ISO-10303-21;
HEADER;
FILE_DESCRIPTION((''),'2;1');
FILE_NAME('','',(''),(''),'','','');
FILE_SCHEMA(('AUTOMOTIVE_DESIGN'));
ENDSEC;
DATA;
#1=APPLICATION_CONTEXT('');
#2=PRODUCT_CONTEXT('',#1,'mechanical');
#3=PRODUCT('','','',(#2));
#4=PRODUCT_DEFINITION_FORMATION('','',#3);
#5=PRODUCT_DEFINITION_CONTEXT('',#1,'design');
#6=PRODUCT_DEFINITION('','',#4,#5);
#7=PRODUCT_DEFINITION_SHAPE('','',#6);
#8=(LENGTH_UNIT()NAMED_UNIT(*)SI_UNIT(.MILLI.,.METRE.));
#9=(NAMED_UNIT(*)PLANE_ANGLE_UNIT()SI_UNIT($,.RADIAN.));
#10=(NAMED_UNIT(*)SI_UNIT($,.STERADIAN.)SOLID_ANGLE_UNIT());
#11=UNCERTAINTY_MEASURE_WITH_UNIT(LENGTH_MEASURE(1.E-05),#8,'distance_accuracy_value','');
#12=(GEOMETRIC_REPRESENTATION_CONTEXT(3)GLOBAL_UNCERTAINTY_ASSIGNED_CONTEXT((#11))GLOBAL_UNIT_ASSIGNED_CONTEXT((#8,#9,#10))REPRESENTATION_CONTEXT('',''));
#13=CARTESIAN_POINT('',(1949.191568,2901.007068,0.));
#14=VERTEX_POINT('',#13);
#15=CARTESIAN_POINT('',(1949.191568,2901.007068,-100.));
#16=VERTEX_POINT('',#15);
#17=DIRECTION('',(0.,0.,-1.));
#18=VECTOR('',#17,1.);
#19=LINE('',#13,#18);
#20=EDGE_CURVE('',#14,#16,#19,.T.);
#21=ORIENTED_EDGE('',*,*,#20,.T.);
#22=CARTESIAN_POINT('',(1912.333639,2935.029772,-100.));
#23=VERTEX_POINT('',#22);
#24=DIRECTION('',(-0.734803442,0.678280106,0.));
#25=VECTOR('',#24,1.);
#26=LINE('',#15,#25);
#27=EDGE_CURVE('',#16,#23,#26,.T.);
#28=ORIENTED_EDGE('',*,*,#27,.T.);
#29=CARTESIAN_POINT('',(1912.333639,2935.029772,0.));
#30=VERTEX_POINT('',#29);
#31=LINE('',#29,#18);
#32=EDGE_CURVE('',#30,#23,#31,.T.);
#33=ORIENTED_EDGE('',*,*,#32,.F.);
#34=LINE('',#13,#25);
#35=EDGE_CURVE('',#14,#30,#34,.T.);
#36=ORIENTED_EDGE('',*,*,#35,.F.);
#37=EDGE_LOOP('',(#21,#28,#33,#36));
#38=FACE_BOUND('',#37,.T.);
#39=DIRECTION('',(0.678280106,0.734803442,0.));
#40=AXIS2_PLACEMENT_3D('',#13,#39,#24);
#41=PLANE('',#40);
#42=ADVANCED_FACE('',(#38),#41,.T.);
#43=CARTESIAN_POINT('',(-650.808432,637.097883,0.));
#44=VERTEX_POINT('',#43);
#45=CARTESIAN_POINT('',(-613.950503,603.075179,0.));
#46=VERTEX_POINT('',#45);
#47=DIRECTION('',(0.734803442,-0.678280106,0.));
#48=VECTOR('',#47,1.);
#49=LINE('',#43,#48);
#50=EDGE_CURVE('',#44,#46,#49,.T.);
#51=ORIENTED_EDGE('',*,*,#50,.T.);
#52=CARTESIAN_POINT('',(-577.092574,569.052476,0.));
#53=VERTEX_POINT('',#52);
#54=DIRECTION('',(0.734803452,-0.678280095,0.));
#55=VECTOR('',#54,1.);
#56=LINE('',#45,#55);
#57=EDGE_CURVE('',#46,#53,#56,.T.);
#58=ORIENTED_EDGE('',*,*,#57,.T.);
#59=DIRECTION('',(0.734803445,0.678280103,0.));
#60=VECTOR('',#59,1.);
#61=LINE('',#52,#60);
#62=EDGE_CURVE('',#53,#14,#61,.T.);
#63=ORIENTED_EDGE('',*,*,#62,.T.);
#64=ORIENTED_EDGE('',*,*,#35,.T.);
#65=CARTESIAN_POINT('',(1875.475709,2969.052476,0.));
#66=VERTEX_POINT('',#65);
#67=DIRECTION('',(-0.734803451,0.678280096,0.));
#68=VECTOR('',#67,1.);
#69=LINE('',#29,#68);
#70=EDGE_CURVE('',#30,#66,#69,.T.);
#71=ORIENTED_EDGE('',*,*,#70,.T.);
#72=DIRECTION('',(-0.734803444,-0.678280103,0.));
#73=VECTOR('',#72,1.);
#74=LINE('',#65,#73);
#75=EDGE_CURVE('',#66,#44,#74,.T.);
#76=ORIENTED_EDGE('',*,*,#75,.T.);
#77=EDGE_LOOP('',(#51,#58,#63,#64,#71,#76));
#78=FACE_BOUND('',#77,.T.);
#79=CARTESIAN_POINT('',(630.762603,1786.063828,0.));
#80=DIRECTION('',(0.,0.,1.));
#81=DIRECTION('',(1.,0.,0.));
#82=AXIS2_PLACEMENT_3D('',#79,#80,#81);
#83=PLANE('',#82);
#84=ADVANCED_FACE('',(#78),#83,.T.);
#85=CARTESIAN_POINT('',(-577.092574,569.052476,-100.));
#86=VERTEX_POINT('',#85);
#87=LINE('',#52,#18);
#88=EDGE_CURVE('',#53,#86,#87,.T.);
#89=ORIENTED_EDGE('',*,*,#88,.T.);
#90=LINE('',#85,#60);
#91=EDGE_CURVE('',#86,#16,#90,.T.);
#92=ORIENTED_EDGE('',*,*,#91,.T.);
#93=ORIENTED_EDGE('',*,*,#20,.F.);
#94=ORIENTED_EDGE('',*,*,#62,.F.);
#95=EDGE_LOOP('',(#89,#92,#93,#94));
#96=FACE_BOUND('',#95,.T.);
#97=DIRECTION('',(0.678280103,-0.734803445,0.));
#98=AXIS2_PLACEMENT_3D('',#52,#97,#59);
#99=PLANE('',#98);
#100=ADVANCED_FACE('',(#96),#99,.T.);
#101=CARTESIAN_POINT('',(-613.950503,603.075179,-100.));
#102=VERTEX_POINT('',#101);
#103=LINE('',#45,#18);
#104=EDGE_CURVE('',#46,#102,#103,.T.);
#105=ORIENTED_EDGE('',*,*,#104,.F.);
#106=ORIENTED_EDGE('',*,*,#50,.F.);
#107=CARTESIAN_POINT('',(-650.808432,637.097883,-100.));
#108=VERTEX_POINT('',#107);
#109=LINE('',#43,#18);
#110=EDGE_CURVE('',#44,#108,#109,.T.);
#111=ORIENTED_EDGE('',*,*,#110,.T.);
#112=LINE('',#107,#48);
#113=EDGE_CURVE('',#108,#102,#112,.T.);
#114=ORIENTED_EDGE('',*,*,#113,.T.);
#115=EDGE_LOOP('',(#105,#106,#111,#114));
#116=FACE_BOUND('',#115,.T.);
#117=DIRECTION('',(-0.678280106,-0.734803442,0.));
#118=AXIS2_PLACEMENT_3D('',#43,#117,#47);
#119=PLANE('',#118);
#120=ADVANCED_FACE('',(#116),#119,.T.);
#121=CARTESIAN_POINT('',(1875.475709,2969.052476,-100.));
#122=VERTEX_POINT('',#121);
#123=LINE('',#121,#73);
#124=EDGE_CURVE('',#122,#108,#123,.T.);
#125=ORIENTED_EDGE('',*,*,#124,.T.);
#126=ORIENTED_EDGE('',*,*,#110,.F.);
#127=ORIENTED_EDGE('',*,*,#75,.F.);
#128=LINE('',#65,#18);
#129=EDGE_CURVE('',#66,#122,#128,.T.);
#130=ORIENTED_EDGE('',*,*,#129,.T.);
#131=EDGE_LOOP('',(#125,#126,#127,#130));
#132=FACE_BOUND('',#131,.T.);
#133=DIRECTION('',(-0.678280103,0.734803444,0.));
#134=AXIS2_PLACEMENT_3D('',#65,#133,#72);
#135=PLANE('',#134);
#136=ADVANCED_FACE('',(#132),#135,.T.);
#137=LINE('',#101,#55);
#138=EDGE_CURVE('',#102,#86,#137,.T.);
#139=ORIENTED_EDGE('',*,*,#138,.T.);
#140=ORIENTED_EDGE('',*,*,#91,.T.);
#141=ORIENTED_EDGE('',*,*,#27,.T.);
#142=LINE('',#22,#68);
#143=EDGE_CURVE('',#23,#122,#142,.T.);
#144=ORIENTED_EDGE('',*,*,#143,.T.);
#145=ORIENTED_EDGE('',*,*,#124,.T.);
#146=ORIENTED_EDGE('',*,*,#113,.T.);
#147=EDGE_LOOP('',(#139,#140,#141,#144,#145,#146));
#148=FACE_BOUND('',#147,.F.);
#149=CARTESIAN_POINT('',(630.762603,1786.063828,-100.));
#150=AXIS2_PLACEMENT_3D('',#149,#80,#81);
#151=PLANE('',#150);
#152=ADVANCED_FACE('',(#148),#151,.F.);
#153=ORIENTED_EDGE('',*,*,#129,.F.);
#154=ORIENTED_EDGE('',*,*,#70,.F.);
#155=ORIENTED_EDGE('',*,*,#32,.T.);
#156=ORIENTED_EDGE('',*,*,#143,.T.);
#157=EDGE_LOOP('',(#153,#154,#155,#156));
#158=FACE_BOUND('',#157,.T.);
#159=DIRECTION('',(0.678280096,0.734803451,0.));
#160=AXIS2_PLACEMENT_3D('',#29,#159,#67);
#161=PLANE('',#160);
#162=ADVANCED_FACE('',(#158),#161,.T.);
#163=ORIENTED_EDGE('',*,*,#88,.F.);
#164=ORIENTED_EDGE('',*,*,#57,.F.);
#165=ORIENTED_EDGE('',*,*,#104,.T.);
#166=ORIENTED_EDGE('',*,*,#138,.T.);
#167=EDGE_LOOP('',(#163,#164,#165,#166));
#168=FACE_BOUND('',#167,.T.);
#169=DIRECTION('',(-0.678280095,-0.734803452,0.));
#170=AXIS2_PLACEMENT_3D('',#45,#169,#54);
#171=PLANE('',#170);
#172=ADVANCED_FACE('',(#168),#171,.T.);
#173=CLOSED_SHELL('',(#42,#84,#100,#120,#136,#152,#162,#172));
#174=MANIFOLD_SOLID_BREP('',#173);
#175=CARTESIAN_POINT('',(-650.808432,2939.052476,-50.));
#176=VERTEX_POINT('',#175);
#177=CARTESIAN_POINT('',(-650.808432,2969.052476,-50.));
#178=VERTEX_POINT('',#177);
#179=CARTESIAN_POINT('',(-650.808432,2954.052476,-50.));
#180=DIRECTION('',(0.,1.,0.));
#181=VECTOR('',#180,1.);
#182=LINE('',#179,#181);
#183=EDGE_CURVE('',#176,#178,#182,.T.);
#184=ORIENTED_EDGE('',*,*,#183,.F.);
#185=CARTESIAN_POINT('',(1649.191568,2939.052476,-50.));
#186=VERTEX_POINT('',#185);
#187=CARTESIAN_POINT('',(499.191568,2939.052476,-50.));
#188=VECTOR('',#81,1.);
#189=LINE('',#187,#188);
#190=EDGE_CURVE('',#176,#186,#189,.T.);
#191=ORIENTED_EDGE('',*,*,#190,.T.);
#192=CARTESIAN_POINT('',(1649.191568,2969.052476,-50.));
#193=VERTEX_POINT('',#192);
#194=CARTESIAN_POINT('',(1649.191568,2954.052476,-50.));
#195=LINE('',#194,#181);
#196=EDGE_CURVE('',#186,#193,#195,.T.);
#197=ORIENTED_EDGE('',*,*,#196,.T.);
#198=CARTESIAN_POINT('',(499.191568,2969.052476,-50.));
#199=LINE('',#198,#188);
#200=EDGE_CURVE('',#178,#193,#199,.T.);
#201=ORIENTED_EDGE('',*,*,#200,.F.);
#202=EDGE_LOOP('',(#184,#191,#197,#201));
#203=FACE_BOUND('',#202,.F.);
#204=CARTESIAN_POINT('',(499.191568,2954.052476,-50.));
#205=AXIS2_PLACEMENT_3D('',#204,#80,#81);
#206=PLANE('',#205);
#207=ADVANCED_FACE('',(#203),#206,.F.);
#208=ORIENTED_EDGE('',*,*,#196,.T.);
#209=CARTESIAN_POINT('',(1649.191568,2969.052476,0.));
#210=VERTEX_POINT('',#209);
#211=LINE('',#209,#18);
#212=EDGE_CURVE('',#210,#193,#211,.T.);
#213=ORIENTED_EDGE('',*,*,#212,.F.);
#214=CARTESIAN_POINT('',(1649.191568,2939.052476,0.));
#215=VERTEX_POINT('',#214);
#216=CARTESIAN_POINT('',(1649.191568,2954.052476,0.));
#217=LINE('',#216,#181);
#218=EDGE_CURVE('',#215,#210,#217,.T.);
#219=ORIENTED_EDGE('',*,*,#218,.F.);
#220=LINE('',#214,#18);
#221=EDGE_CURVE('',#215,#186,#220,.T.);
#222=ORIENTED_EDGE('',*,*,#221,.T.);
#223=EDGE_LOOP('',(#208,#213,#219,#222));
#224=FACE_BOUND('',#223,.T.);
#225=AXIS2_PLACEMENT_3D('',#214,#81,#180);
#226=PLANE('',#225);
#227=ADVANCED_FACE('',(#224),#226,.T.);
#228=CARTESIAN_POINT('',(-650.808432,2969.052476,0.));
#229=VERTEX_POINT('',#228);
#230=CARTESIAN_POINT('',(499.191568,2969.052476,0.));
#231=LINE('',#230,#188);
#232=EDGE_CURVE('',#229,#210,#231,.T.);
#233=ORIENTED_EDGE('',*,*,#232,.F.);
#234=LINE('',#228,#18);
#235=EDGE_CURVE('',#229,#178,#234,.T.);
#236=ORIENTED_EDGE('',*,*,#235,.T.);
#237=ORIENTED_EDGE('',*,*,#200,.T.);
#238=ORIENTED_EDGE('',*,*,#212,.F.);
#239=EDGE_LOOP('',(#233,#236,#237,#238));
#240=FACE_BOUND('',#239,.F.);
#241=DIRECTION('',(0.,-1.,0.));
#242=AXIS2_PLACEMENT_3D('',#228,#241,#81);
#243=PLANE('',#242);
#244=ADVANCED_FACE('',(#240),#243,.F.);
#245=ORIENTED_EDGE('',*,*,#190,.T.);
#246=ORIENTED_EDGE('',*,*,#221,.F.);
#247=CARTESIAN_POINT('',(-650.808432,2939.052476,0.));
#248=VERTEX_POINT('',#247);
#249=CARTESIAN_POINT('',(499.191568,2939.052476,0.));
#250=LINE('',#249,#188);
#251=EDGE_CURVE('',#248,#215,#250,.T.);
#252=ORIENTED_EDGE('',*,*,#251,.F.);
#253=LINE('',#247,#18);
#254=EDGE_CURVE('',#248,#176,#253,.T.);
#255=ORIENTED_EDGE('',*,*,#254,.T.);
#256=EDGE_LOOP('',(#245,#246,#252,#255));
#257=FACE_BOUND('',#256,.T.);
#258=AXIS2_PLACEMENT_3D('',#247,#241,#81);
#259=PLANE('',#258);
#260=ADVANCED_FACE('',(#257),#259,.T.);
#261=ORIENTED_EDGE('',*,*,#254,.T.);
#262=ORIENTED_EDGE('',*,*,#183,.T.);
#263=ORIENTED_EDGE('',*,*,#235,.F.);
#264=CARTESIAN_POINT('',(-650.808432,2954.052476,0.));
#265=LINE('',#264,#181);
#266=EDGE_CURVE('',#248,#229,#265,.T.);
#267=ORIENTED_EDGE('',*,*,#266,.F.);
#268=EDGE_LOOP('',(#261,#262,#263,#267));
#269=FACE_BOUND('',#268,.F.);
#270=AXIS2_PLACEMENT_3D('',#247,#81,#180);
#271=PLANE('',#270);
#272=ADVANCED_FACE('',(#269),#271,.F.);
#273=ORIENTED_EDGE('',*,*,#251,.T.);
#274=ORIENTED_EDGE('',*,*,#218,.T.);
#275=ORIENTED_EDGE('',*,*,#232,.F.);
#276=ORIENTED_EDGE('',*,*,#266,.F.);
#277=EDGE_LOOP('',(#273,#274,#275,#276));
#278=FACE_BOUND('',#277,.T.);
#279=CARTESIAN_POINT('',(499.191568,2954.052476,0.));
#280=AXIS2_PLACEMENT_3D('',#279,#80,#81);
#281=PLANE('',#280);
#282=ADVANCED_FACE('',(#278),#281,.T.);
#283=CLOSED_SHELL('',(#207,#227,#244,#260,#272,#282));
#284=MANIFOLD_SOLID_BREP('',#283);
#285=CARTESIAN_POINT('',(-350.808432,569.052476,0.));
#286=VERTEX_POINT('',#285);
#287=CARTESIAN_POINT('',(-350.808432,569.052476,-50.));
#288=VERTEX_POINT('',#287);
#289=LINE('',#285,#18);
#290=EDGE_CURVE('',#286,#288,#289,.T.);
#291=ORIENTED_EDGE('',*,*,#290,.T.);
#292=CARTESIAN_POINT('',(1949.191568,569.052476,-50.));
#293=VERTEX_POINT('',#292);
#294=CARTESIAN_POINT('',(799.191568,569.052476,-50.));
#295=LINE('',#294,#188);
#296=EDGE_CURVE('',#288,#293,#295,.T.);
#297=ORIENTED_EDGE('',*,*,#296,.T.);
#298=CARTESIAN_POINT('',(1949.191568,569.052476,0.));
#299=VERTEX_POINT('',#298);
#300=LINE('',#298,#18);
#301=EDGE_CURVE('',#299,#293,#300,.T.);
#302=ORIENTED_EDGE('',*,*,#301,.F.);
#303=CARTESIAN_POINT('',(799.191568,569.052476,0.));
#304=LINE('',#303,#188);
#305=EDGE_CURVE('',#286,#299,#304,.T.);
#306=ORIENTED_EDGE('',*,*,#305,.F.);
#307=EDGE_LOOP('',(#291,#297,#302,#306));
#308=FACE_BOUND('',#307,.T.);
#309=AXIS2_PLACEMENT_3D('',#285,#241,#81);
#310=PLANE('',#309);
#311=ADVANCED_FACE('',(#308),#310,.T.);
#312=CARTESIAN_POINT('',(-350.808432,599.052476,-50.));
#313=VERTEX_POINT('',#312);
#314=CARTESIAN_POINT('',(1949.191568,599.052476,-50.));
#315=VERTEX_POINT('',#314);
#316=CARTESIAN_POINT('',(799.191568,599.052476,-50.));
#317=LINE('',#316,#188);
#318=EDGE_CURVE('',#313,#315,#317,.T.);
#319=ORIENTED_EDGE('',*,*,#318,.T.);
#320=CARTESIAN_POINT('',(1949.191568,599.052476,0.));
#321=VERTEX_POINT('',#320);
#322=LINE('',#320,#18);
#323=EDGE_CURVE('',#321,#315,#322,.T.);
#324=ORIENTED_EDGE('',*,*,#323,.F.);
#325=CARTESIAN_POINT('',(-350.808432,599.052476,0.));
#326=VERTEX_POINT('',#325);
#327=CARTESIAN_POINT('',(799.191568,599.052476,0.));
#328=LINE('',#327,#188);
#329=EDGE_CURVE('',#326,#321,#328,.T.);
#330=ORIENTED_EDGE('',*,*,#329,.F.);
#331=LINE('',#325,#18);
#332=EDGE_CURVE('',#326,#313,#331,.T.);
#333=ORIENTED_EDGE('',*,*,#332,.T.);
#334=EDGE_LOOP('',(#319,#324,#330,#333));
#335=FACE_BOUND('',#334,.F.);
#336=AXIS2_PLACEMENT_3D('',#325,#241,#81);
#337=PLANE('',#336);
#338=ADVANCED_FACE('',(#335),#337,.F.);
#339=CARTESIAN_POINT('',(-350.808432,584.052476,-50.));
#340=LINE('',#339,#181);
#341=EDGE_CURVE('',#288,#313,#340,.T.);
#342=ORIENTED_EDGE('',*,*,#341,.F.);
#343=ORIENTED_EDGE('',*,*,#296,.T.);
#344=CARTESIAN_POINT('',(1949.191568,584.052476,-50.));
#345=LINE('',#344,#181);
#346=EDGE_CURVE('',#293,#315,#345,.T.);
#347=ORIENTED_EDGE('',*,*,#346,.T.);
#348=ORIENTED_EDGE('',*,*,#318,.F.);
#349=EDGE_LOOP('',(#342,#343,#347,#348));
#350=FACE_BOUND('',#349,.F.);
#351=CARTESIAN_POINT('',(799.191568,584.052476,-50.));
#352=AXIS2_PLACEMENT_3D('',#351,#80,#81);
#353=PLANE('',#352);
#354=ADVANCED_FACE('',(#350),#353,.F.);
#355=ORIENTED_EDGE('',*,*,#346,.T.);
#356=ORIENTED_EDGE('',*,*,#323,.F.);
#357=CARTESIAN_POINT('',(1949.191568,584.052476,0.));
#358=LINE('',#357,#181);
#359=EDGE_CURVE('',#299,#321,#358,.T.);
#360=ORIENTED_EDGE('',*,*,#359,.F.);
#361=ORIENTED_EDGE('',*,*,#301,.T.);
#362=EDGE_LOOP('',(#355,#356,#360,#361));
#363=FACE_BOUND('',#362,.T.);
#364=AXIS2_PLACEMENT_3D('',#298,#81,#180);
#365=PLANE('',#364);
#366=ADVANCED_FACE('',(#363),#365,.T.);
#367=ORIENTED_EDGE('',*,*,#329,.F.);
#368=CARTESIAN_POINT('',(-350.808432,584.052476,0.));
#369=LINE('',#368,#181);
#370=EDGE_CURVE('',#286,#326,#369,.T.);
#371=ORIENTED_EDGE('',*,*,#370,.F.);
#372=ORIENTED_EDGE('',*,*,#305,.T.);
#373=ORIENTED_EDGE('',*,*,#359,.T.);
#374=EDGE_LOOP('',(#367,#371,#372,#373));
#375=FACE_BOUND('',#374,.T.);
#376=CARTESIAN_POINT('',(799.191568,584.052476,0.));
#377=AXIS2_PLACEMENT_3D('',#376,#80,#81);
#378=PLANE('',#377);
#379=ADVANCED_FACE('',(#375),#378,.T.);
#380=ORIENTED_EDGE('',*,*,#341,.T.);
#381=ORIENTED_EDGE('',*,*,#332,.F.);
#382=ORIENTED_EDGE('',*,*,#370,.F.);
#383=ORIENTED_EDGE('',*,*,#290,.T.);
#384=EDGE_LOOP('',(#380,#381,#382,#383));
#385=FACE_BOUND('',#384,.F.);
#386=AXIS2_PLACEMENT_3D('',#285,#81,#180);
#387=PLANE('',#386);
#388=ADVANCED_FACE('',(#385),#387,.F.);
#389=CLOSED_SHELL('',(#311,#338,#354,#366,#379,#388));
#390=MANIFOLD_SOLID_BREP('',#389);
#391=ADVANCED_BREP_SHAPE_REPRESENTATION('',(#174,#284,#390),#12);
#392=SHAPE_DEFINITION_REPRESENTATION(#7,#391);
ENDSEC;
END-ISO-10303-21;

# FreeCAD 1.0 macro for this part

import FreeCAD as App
import Part
import Sketcher
Q = App.Units.Quantity

doc = App.newDocument("Part")
params = doc.addObject("Spreadsheet::Sheet", "Params")
for row, (alias, value) in enumerate([
    ("pad1_length", "100 mm"),
    ("sketch2_width", "2300 mm"),
    ("sketch2_height", "30 mm"),
    ("pad2_length", "50 mm"),
    ("sketch3_width", "2300 mm"),
    ("sketch3_height", "30 mm"),
    ("pad3_length", "50 mm"),
], start=1):
    params.set(f"A{row}", alias)
    params.set(f"B{row}", "=" + value)
    params.setAlias(f"B{row}", alias)

body = doc.addObject("PartDesign::Body", "Body")

sketch1 = doc.addObject("Sketcher::SketchObject", "Sketch")
body.addObject(sketch1)
sketch1.AttachmentSupport = (doc.XY_Plane, [""])
sketch1.MapMode = "FlatFace"
sketch1.addGeometry(Part.LineSegment(App.Vector(1912, 2935, 0), App.Vector(1875, 2969, 0)), False)
sketch1.addGeometry(Part.LineSegment(App.Vector(1875, 2969, 0), App.Vector(-651, 637, 0)), False)
sketch1.addGeometry(Part.LineSegment(App.Vector(-651, 637, 0), App.Vector(-614, 603, 0)), False)
sketch1.addGeometry(Part.LineSegment(App.Vector(-614, 603, 0), App.Vector(-577, 569, 0)), False)
sketch1.addGeometry(Part.LineSegment(App.Vector(-577, 569, 0), App.Vector(1949, 2901, 0)), False)
sketch1.addGeometry(Part.LineSegment(App.Vector(1949, 2901, 0), App.Vector(1912, 2935, 0)), False)
sketch1.addConstraint(Sketcher.Constraint("Coincident", 0, 2, 1, 1))
sketch1.addConstraint(Sketcher.Constraint("Coincident", 1, 2, 2, 1))
sketch1.addConstraint(Sketcher.Constraint("Coincident", 2, 2, 3, 1))
sketch1.addConstraint(Sketcher.Constraint("Coincident", 3, 2, 4, 1))
sketch1.addConstraint(Sketcher.Constraint("Coincident", 4, 2, 5, 1))
sketch1.addConstraint(Sketcher.Constraint("Coincident", 5, 2, 0, 1))
sketch1.addConstraint(Sketcher.Constraint("Parallel", 0, 2))
sketch1.addConstraint(Sketcher.Constraint("Parallel", 2, 3))
sketch1.addConstraint(Sketcher.Constraint("Parallel", 1, 4))
sketch1.addConstraint(Sketcher.Constraint("Parallel", 3, 5))
sketch1.addConstraint(Sketcher.Constraint("Equal", 0, 2))
sketch1.addConstraint(Sketcher.Constraint("Equal", 2, 3))
sketch1.addConstraint(Sketcher.Constraint("DistanceY", 3, 2, 0, 2, Q("2400 mm")))
sketch1.addConstraint(Sketcher.Constraint("DistanceX", 1, 2, 4, 2, Q("2600 mm")))
sketch1.addConstraint(Sketcher.Constraint("Distance", 1, Q("3438.04069 mm")))
sketch1.addConstraint(Sketcher.Constraint("DistanceX", -1, 1, 0, 2, Q("1875.475709 mm")))
sketch1.addConstraint(Sketcher.Constraint("DistanceX", 1, 2, -1, 1, Q("650.808432 mm")))
sketch1.addConstraint(Sketcher.Constraint("DistanceY", -1, 1, 2, 2, Q("603.075179 mm")))
pad1 = doc.addObject("PartDesign::Pad", "Pad")
body.addObject(pad1)
pad1.Profile = sketch1
pad1.setExpression("Length", "Params.pad1_length")
pad1.Reversed = True
body2 = doc.addObject("PartDesign::Body", "Body001")

sketch2 = doc.addObject("Sketcher::SketchObject", "Sketch001")
body2.addObject(sketch2)
sketch2.AttachmentSupport = (doc.getObject("XY_Plane001"), [""])
sketch2.MapMode = "FlatFace"
sketch2.addGeometry(Part.LineSegment(App.Vector(-651, 2969, 0), App.Vector(-651, 2939, 0)), False)
sketch2.addGeometry(Part.LineSegment(App.Vector(-651, 2939, 0), App.Vector(1649, 2939, 0)), False)
sketch2.addGeometry(Part.LineSegment(App.Vector(1649, 2939, 0), App.Vector(1649, 2969, 0)), False)
sketch2.addGeometry(Part.LineSegment(App.Vector(1649, 2969, 0), App.Vector(-651, 2969, 0)), False)
sketch2.addConstraint(Sketcher.Constraint("Coincident", 0, 2, 1, 1))
sketch2.addConstraint(Sketcher.Constraint("Coincident", 1, 2, 2, 1))
sketch2.addConstraint(Sketcher.Constraint("Coincident", 2, 2, 3, 1))
sketch2.addConstraint(Sketcher.Constraint("Coincident", 3, 2, 0, 1))
sketch2.addConstraint(Sketcher.Constraint("Vertical", 0))
sketch2.addConstraint(Sketcher.Constraint("Horizontal", 1))
sketch2.addConstraint(Sketcher.Constraint("Vertical", 2))
sketch2.addConstraint(Sketcher.Constraint("Horizontal", 3))
sketch2.addConstraint(Sketcher.Constraint("DistanceX", 1, 1, 1, 2, Q("2300 mm")))
sketch2.addConstraint(Sketcher.Constraint("DistanceY", 0, 2, 0, 1, Q("30 mm")))
sketch2.addConstraint(Sketcher.Constraint("DistanceX", 0, 2, -1, 1, Q("650.808432 mm")))
sketch2.addConstraint(Sketcher.Constraint("DistanceY", -1, 1, 0, 2, Q("2939.052476 mm")))
sketch2.setExpression("Constraints[8]", "Params.sketch2_width")
sketch2.setExpression("Constraints[9]", "Params.sketch2_height")
pad2 = doc.addObject("PartDesign::Pad", "Pad001")
body2.addObject(pad2)
pad2.Profile = sketch2
pad2.setExpression("Length", "Params.pad2_length")
pad2.Reversed = True
body3 = doc.addObject("PartDesign::Body", "Body002")

sketch3 = doc.addObject("Sketcher::SketchObject", "Sketch002")
body3.addObject(sketch3)
sketch3.AttachmentSupport = (doc.getObject("XY_Plane002"), [""])
sketch3.MapMode = "FlatFace"
sketch3.addGeometry(Part.LineSegment(App.Vector(-351, 599, 0), App.Vector(-351, 569, 0)), False)
sketch3.addGeometry(Part.LineSegment(App.Vector(-351, 569, 0), App.Vector(1949, 569, 0)), False)
sketch3.addGeometry(Part.LineSegment(App.Vector(1949, 569, 0), App.Vector(1949, 599, 0)), False)
sketch3.addGeometry(Part.LineSegment(App.Vector(1949, 599, 0), App.Vector(-351, 599, 0)), False)
sketch3.addConstraint(Sketcher.Constraint("Coincident", 0, 2, 1, 1))
sketch3.addConstraint(Sketcher.Constraint("Coincident", 1, 2, 2, 1))
sketch3.addConstraint(Sketcher.Constraint("Coincident", 2, 2, 3, 1))
sketch3.addConstraint(Sketcher.Constraint("Coincident", 3, 2, 0, 1))
sketch3.addConstraint(Sketcher.Constraint("Vertical", 0))
sketch3.addConstraint(Sketcher.Constraint("Horizontal", 1))
sketch3.addConstraint(Sketcher.Constraint("Vertical", 2))
sketch3.addConstraint(Sketcher.Constraint("Horizontal", 3))
sketch3.addConstraint(Sketcher.Constraint("DistanceX", 1, 1, 1, 2, Q("2300 mm")))
sketch3.addConstraint(Sketcher.Constraint("DistanceY", 0, 2, 0, 1, Q("30 mm")))
sketch3.addConstraint(Sketcher.Constraint("DistanceX", 0, 2, -1, 1, Q("350.808432 mm")))
sketch3.addConstraint(Sketcher.Constraint("DistanceY", -1, 1, 0, 2, Q("569.052476 mm")))
sketch3.setExpression("Constraints[8]", "Params.sketch3_width")
sketch3.setExpression("Constraints[9]", "Params.sketch3_height")
pad3 = doc.addObject("PartDesign::Pad", "Pad002")
body3.addObject(pad3)
pad3.Profile = sketch3
pad3.setExpression("Length", "Params.pad3_length")
pad3.Reversed = True

doc.recompute()
